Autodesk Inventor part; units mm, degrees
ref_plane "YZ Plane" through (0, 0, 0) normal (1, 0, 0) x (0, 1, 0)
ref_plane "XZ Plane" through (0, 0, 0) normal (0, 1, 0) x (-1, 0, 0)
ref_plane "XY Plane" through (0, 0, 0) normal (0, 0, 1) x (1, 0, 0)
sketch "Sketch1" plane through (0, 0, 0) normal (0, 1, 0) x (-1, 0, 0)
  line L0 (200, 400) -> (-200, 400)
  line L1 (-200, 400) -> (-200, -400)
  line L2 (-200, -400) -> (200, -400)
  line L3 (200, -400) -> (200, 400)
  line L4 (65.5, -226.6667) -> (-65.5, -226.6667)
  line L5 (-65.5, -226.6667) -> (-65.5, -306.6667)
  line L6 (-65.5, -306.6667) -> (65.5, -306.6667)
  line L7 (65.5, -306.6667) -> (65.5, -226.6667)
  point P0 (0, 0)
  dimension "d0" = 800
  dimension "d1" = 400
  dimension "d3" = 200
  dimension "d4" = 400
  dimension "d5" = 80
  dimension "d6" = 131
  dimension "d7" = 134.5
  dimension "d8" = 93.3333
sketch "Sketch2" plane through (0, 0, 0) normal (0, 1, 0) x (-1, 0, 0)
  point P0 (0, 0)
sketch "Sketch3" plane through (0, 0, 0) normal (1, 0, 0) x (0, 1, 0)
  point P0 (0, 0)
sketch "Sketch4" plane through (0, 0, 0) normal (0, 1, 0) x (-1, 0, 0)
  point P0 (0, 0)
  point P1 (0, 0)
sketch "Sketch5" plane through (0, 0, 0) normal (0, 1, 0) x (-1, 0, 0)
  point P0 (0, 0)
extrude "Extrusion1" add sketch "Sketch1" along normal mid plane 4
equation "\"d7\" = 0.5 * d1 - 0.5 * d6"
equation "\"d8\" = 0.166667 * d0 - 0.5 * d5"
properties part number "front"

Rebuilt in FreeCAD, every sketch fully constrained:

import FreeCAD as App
import Part
import Sketcher
Q = App.Units.Quantity

doc = App.newDocument("Part")
params = doc.addObject("Spreadsheet::Sheet", "Params")
for row, (alias, value) in enumerate([
    ("sketch1_width", "400 mm"),
    ("sketch1_width2", "131 mm"),
    ("sketch1_height", "800 mm"),
    ("sketch1_height2", "80 mm"),
    ("pad1_length", "4 mm"),
], start=1):
    params.set(f"A{row}", alias)
    params.set(f"B{row}", "=" + value)
    params.setAlias(f"B{row}", alias)

body = doc.addObject("PartDesign::Body", "Body")

# Sketch on XZ plane
sketch1 = body.newObject("Sketcher::SketchObject", "Sketch")
sketch1.AttachmentSupport = (doc.getObject("XZ_Plane"), [""])
sketch1.MapMode = "FlatFace"
sketch1.addGeometry([
    Part.LineSegment(App.Vector(-200, -400, 0), App.Vector(-200, 400, 0)),  # 0
    Part.LineSegment(App.Vector(-200, 400, 0), App.Vector(200, 400, 0)),  # 1
    Part.LineSegment(App.Vector(200, 400, 0), App.Vector(200, -400, 0)),  # 2
    Part.LineSegment(App.Vector(200, -400, 0), App.Vector(-200, -400, 0)),  # 3
    Part.LineSegment(App.Vector(66, -227, 0), App.Vector(-66, -227, 0)),  # 4
    Part.LineSegment(App.Vector(-66, -227, 0), App.Vector(-66, -307, 0)),  # 5
    Part.LineSegment(App.Vector(-66, -307, 0), App.Vector(66, -307, 0)),  # 6
    Part.LineSegment(App.Vector(66, -307, 0), App.Vector(66, -227, 0)),  # 7
], False)
sketch1.addConstraint([
    Sketcher.Constraint("Coincident", 0, 2, 1, 1),
    Sketcher.Constraint("Coincident", 1, 2, 2, 1),
    Sketcher.Constraint("Coincident", 2, 2, 3, 1),
    Sketcher.Constraint("Coincident", 3, 2, 0, 1),
    Sketcher.Constraint("Coincident", 4, 2, 5, 1),
    Sketcher.Constraint("Coincident", 5, 2, 6, 1),
    Sketcher.Constraint("Coincident", 6, 2, 7, 1),
    Sketcher.Constraint("Coincident", 7, 2, 4, 1),
    Sketcher.Constraint("Vertical", 0),
    Sketcher.Constraint("Horizontal", 1),
    Sketcher.Constraint("Vertical", 2),
    Sketcher.Constraint("Horizontal", 3),
    Sketcher.Constraint("Horizontal", 4),
    Sketcher.Constraint("Vertical", 5),
    Sketcher.Constraint("Horizontal", 6),
    Sketcher.Constraint("Vertical", 7),
    Sketcher.Constraint("Symmetric", 0, 2, 2, 2, -1, 1),
    Sketcher.Constraint("DistanceX", 1, 1, 1, 2, Q("400 mm")),
    Sketcher.Constraint("DistanceX", 4, 2, 4, 1, Q("131 mm")),
    Sketcher.Constraint("DistanceY", 0, 1, 0, 2, Q("800 mm")),
    Sketcher.Constraint("DistanceY", 5, 2, 5, 1, Q("80 mm")),
    Sketcher.Constraint("DistanceX", 3, 2, 4, 2, Q("134.5 mm")),
    Sketcher.Constraint("DistanceY", 3, 2, 5, 2, Q("93.3333 mm")),
])
sketch1.setExpression("Constraints[17]", "Params.sketch1_width")
sketch1.setExpression("Constraints[18]", "Params.sketch1_width2")
sketch1.setExpression("Constraints[19]", "Params.sketch1_height")
sketch1.setExpression("Constraints[20]", "Params.sketch1_height2")
pad1 = body.newObject("PartDesign::Pad", "Pad")
pad1.Profile = sketch1
pad1.setExpression("Length", "Params.pad1_length")
pad1.Midplane = True

doc.recompute()
